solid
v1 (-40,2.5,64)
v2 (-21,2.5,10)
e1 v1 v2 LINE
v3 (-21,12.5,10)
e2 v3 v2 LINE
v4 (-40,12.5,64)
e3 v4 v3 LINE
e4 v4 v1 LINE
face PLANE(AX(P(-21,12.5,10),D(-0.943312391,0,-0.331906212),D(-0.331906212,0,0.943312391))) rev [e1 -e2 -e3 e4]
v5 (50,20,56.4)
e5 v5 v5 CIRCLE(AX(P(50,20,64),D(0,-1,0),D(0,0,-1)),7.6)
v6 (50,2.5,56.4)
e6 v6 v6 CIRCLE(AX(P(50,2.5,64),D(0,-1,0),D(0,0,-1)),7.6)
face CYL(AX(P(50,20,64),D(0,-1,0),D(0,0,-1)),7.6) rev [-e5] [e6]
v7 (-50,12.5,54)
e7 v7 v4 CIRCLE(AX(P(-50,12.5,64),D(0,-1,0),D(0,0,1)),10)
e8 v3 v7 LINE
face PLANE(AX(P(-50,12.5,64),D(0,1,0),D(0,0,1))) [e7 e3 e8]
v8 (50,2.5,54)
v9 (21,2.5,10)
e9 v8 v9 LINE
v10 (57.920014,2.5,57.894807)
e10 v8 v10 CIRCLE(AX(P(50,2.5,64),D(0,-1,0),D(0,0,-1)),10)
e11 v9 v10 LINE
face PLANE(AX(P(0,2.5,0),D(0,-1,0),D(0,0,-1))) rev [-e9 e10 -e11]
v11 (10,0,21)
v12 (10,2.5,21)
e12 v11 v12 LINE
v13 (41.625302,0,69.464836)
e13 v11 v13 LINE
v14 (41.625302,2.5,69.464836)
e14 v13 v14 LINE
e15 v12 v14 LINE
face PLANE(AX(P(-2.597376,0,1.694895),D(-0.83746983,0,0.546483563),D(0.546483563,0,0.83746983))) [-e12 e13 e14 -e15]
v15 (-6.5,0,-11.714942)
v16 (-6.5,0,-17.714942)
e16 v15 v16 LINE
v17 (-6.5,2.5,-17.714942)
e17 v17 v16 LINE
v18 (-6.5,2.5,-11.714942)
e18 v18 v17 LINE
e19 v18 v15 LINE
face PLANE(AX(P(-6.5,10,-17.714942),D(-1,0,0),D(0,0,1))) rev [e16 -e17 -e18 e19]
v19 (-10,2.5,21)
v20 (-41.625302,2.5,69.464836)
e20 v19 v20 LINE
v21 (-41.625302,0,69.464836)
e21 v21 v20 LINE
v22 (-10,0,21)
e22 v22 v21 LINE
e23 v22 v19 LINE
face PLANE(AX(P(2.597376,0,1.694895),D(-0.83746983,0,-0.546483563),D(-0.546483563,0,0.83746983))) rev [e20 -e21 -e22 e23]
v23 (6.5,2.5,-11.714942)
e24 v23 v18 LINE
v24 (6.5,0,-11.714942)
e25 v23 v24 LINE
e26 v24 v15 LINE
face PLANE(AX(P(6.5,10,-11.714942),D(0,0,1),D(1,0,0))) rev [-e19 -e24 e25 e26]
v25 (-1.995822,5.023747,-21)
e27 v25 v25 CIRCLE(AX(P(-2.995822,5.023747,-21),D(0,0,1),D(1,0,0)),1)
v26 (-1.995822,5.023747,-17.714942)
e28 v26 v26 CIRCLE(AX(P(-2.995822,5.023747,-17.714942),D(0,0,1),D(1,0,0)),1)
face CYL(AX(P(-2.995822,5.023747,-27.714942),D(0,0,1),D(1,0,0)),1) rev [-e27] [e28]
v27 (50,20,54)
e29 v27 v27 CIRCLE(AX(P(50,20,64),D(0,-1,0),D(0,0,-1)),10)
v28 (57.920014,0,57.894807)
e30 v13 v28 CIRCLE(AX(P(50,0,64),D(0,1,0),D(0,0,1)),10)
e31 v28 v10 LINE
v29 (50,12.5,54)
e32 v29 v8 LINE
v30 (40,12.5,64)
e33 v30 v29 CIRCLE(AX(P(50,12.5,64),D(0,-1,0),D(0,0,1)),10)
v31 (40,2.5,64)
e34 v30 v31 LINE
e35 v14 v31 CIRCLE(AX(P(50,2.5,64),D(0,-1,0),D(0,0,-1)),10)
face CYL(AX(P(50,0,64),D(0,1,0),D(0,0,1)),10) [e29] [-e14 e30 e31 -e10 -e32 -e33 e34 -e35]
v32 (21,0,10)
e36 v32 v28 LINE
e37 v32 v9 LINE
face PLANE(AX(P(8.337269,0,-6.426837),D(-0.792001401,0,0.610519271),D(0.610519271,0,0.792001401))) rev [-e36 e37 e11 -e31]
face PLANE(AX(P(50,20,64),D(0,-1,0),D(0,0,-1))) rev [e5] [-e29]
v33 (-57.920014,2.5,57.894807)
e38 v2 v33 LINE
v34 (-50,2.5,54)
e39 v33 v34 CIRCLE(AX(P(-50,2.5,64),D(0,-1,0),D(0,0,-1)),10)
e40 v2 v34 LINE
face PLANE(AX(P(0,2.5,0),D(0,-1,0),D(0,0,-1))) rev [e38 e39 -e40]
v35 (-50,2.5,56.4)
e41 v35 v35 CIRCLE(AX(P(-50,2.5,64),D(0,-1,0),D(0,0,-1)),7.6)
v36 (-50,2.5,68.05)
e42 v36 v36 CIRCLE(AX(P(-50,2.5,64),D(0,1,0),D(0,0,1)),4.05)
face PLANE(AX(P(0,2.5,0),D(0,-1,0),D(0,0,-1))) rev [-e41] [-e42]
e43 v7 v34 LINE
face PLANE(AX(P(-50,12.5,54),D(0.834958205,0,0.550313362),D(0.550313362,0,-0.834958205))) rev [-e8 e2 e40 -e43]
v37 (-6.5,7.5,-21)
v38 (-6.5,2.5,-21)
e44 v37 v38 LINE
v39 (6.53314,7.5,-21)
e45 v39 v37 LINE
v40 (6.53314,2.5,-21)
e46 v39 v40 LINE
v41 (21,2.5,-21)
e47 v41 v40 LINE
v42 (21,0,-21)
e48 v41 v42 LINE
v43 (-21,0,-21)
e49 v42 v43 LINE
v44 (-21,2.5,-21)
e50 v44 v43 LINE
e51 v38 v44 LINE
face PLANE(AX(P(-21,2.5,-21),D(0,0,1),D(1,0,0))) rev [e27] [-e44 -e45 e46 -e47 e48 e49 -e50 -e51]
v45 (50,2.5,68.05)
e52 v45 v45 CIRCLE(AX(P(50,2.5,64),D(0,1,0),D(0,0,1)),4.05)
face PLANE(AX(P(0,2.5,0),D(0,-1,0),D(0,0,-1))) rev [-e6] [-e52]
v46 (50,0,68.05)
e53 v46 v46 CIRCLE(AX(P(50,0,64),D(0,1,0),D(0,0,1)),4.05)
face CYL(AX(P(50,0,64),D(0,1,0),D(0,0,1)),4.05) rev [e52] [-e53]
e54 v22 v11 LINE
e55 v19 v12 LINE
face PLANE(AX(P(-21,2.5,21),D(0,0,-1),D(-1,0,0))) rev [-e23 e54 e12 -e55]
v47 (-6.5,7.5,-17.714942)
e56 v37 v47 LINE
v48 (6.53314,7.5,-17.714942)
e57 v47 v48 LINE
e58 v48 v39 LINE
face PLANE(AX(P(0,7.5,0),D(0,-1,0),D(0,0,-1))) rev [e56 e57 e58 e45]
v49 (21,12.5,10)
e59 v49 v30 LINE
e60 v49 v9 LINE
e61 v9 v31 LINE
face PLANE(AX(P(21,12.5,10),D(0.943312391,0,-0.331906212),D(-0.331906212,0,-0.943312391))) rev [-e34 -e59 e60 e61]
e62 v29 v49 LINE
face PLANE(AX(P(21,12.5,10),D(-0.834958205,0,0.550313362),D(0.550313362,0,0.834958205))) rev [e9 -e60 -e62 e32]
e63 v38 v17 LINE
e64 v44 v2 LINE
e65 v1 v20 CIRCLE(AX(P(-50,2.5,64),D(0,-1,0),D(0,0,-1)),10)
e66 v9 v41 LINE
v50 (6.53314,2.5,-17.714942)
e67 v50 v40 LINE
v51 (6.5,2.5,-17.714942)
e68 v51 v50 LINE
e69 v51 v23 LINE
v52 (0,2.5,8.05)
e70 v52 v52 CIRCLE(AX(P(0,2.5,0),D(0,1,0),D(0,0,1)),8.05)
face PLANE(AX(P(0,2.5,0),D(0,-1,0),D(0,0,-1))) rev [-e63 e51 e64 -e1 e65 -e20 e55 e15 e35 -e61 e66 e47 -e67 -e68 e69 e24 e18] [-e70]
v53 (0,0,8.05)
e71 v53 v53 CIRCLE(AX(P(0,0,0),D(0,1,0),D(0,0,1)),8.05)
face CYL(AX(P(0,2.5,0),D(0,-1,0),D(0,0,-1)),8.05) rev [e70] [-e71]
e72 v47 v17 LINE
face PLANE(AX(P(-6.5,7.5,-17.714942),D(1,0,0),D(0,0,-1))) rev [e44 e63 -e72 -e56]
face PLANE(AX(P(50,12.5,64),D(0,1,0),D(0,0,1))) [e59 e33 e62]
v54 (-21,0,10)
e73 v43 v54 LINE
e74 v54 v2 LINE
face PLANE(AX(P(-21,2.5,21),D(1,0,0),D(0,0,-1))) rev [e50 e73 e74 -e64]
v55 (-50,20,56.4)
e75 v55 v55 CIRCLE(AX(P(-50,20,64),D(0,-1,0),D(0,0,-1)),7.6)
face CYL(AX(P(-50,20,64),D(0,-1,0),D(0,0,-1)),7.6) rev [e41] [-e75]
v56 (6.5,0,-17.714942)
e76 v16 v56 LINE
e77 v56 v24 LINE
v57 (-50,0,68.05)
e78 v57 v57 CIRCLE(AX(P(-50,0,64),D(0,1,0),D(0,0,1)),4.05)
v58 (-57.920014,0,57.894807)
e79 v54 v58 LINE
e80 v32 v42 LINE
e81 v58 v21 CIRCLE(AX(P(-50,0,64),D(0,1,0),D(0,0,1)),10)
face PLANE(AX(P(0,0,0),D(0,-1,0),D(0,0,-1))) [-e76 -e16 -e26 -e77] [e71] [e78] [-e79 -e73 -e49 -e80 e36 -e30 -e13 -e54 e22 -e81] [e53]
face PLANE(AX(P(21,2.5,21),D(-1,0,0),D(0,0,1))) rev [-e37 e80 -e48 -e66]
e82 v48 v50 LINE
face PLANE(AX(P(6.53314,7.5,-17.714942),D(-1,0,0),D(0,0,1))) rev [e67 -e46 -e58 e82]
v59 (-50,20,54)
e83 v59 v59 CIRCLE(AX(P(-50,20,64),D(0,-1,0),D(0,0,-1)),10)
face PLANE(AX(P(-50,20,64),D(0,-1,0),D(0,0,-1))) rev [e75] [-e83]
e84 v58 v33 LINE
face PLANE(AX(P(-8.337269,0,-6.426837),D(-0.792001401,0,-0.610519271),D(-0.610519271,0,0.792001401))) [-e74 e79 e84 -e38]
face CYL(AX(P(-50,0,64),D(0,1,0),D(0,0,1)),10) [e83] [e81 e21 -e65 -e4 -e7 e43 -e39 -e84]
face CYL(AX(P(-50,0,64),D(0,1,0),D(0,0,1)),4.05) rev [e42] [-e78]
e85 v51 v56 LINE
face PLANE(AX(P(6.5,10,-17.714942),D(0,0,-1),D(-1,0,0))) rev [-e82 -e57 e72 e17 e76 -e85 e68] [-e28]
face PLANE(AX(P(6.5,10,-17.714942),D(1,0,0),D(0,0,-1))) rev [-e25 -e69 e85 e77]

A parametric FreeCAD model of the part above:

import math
import FreeCAD as App
import Part
import Sketcher

V = App.Vector

doc = App.newDocument("Part")
body = doc.addObject("PartDesign::Body", "Body")

# Sketch on XZ plane
sketch1 = body.newObject("Sketcher::SketchObject", "Sketch")
sketch1.AttachmentSupport = (doc.getObject("XZ_Plane"), [""])
sketch1.MapMode = "FlatFace"
sketch1.addGeometry([
    Part.LineSegment(V(-21, -21, 0), V(-21, 21, 0)),  # 0
    Part.LineSegment(V(-21, 21, 0), V(21, 21, 0)),  # 1
    Part.LineSegment(V(21, 21, 0), V(21, -21, 0)),  # 2
    Part.LineSegment(V(21, -21, 0), V(-21, -21, 0)),  # 3
    Part.Circle(V(0, 0, 0), V(0, 0, 1), 8),  # 4
], False)
sketch1.addConstraint([
    Sketcher.Constraint("Coincident", 0, 2, 1, 1),
    Sketcher.Constraint("Coincident", 1, 2, 2, 1),
    Sketcher.Constraint("Coincident", 2, 2, 3, 1),
    Sketcher.Constraint("Coincident", 3, 2, 0, 1),
    Sketcher.Constraint("Vertical", 0),
    Sketcher.Constraint("Horizontal", 1),
    Sketcher.Constraint("Vertical", 2),
    Sketcher.Constraint("Horizontal", 3),
    Sketcher.Constraint("Coincident", 4, 3, -1, 1),
    Sketcher.Constraint("Symmetric", 0, 2, 2, 2, -1, 1),
    Sketcher.Constraint("Equal", 3, 0),
    Sketcher.Constraint("Diameter", 4, 16.1),
    Sketcher.Constraint("DistanceX", 1, 1, 1, 2, 42.0),
])
pad1 = body.newObject("PartDesign::Pad", "Pad")
pad1.Profile = sketch1
pad1.Length = 2.5
pad1.Reversed = True

# Sketch on XZ plane
sketch2 = body.newObject("Sketcher::SketchObject", "Sketch001")
sketch2.AttachmentSupport = (doc.getObject("XZ_Plane"), [""])
sketch2.MapMode = "FlatFace"
sketch2.AttachmentOffset = App.Placement(V(0, 0, -2.5), App.Rotation())
sketch2.addGeometry([
    Part.LineSegment(V(-21, 21, 0), V(-21, 10, 0)),  # 0
    Part.LineSegment(V(-21, 10, 0), V(-57.9, 57.9, 0)),  # 1
    Part.ArcOfCircle(Part.Circle(V(-50, 64, 0), V(0, 0, 1), 10), math.radians(33), math.radians(218)),  # 2
    Part.LineSegment(V(-41.6, 69.5, 0), V(-10, 21, 0)),  # 3
    Part.LineSegment(V(-10, 21, 0), V(-21, 21, 0)),  # 4
    Part.Circle(V(-50, 64, 0), V(0, 0, 1), 4),  # 5
    Part.LineSegment(V(57.9, 57.9, 0), V(21, 10, 0)),  # 6
    Part.LineSegment(V(21, 10, 0), V(21, 21, 0)),  # 7
    Part.LineSegment(V(21, 21, 0), V(10, 21, 0)),  # 8
    Part.LineSegment(V(10, 21, 0), V(41.6, 69.5, 0)),  # 9
    Part.ArcOfCircle(Part.Circle(V(50, 64, 0), V(0, 0, 1), 10), math.radians(-38), math.radians(147)),  # 10
    Part.Circle(V(50, 64, 0), V(0, 0, 1), 4),  # 11
], False)
sketch2.addConstraint([
    Sketcher.Constraint("Coincident", 0, 2, 1, 1),
    Sketcher.Constraint("Tangent", 1, 2, 2, 2),
    Sketcher.Constraint("Tangent", 2, 1, 3, 1),
    Sketcher.Constraint("Coincident", 3, 2, 4, 1),
    Sketcher.Constraint("Coincident", 4, 2, 0, 1),
    Sketcher.Constraint("Coincident", 6, 2, 7, 1),
    Sketcher.Constraint("Coincident", 7, 2, 8, 1),
    Sketcher.Constraint("Coincident", 8, 2, 9, 1),
    Sketcher.Constraint("Tangent", 9, 2, 10, 2),
    Sketcher.Constraint("Tangent", 10, 1, 6, 1),
    Sketcher.Constraint("Vertical", 0),
    Sketcher.Constraint("Horizontal", 4),
    Sketcher.Constraint("Vertical", 7),
    Sketcher.Constraint("Horizontal", 8),
    Sketcher.Constraint("Coincident", 5, 3, 2, 3),
    Sketcher.Constraint("Coincident", 11, 3, 10, 3),
    Sketcher.Constraint("Equal", 2, 10),
    Sketcher.Constraint("Equal", 5, 11),
    Sketcher.Constraint("Symmetric", 2, 3, 10, 3, -2),
    Sketcher.Constraint("Symmetric", 0, 2, 6, 2, -2),
    Sketcher.Constraint("Symmetric", 3, 2, 8, 2, -2),
    Sketcher.Constraint("Equal", 8, 0),
    Sketcher.Constraint("Radius", 2, 10.0),
    Sketcher.Constraint("Diameter", 5, 8.1),
    Sketcher.Constraint("DistanceX", 4, 2, 4, 1, 11.0),
    Sketcher.Constraint("DistanceX", 2, 3, -1, 1, 50.0),
    Sketcher.Constraint("DistanceY", -1, 1, 2, 3, 64.0),
    Sketcher.Constraint("DistanceX", 0, 2, -1, 1, 21.0),
    Sketcher.Constraint("DistanceY", -1, 1, 0, 2, 10.0),
])
pad2 = body.newObject("PartDesign::Pad", "Pad001")
pad2.Profile = sketch2
pad2.Length = 2.5

# Sketch on XZ plane
sketch3 = body.newObject("Sketcher::SketchObject", "Sketch002")
sketch3.AttachmentSupport = (doc.getObject("XZ_Plane"), [""])
sketch3.MapMode = "FlatFace"
sketch3.AttachmentOffset = App.Placement(V(0, 0, -20), App.Rotation())
sketch3.addGeometry([
    Part.Circle(V(-50, 64, 0), V(0, 0, 1), 10),
    Part.Circle(V(-50, 64, 0), V(0, 0, 1), 8),
    Part.Circle(V(50, 64, 0), V(0, 0, 1), 10),
    Part.Circle(V(50, 64, 0), V(0, 0, 1), 8),
], False)
sketch3.addConstraint([
    Sketcher.Constraint("Coincident", 1, 3, 0, 3),
    Sketcher.Constraint("Coincident", 3, 3, 2, 3),
    Sketcher.Constraint("Equal", 0, 2),
    Sketcher.Constraint("Equal", 1, 3),
    Sketcher.Constraint("Symmetric", 0, 3, 2, 3, -2),
    Sketcher.Constraint("Diameter", 0, 20.0),
    Sketcher.Constraint("Diameter", 1, 15.2),
    Sketcher.Constraint("DistanceX", 0, 3, -1, 1, 50.0),
    Sketcher.Constraint("DistanceY", -1, 1, 0, 3, 64.0),
])
pad3 = body.newObject("PartDesign::Pad", "Pad002")
pad3.Profile = sketch3
pad3.Length = 20

# Sketch on XZ plane
sketch4 = body.newObject("Sketcher::SketchObject", "Sketch003")
sketch4.AttachmentSupport = (doc.getObject("XZ_Plane"), [""])
sketch4.MapMode = "FlatFace"
sketch4.AttachmentOffset = App.Placement(V(0, 0, -12.5), App.Rotation())
sketch4.addGeometry([
    Part.LineSegment(V(-21, 10, 0), V(-50, 54, 0)),  # 0
    Part.ArcOfCircle(Part.Circle(V(-50, 64, 0), V(0, 0, 1), 10), math.radians(-90), math.radians(0)),  # 1
    Part.LineSegment(V(-40, 64, 0), V(-21, 10, 0)),  # 2
    Part.LineSegment(V(21, 10, 0), V(40, 64, 0)),  # 3
    Part.ArcOfCircle(Part.Circle(V(50, 64, 0), V(0, 0, 1), 10), math.radians(180), math.radians(270)),  # 4
    Part.LineSegment(V(50, 54, 0), V(21, 10, 0)),  # 5
], False)
sketch4.addConstraint([
    Sketcher.Constraint("Coincident", 0, 2, 1, 1),
    Sketcher.Constraint("Coincident", 1, 2, 2, 1),
    Sketcher.Constraint("Coincident", 2, 2, 0, 1),
    Sketcher.Constraint("Coincident", 3, 2, 4, 1),
    Sketcher.Constraint("Coincident", 4, 2, 5, 1),
    Sketcher.Constraint("Coincident", 5, 2, 3, 1),
    Sketcher.Constraint("Equal", 1, 4),
    Sketcher.Constraint("Symmetric", 1, 3, 4, 3, -2),
    Sketcher.Constraint("Symmetric", 2, 2, 5, 2, -2),
    Sketcher.Constraint("Horizontal", 4, 3, 1, 2),
    Sketcher.Constraint("Horizontal", 1, 2, 3, 2),
    Sketcher.Constraint("Vertical", 1, 3, 0, 2),
    Sketcher.Constraint("Equal", 0, 5),
    Sketcher.Constraint("Radius", 1, 10.0),
    Sketcher.Constraint("DistanceX", 1, 3, -1, 1, 50.0),
    Sketcher.Constraint("DistanceY", -1, 1, 1, 3, 64.0),
    Sketcher.Constraint("DistanceX", 2, 2, -1, 1, 21.0),
    Sketcher.Constraint("DistanceY", -1, 1, 2, 2, 10.0),
])
pad4 = body.newObject("PartDesign::Pad", "Pad003")
pad4.Profile = sketch4
pad4.Length = 10

# Sketch on XZ plane
sketch5 = body.newObject("Sketcher::SketchObject", "Sketch004")
sketch5.AttachmentSupport = (doc.getObject("XZ_Plane"), [""])
sketch5.MapMode = "FlatFace"
sketch5.addGeometry([
    Part.LineSegment(V(6, -18, 0), V(6, -12, 0)),
    Part.LineSegment(V(6, -12, 0), V(-6, -12, 0)),
    Part.LineSegment(V(-6, -12, 0), V(-6, -18, 0)),
    Part.LineSegment(V(-6, -18, 0), V(6, -18, 0)),
], False)
sketch5.addConstraint([
    Sketcher.Constraint("Coincident", 0, 2, 1, 1),
    Sketcher.Constraint("Coincident", 1, 2, 2, 1),
    Sketcher.Constraint("Coincident", 2, 2, 3, 1),
    Sketcher.Constraint("Coincident", 3, 2, 0, 1),
    Sketcher.Constraint("Vertical", 0),
    Sketcher.Constraint("Horizontal", 1),
    Sketcher.Constraint("Vertical", 2),
    Sketcher.Constraint("Horizontal", 3),
    Sketcher.Constraint("DistanceX", 1, 2, 1, 1, 13.0),
    Sketcher.Constraint("DistanceY", 0, 1, 0, 2, 6.0),
    Sketcher.Constraint("DistanceX", -1, 1, 0, 2, 6.5),
    Sketcher.Constraint("DistanceY", 0, 2, -1, 1, 11.714942),
])
pocket1 = body.newObject("PartDesign::Pocket", "Pocket")
pocket1.Profile = sketch5
pocket1.Length = 10

# Sketch on XZ plane
sketch6 = body.newObject("Sketcher::SketchObject", "Sketch005")
sketch6.AttachmentSupport = (doc.getObject("XZ_Plane"), [""])
sketch6.MapMode = "FlatFace"
sketch6.AttachmentOffset = App.Placement(V(0, 0, -2.5), App.Rotation())
sketch6.addGeometry([
    Part.LineSegment(V(-6.5, -21, 0), V(-6.5, -17.7, 0)),
    Part.LineSegment(V(-6.5, -17.7, 0), V(6.5, -17.7, 0)),
    Part.LineSegment(V(6.5, -17.7, 0), V(6.5, -21, 0)),
    Part.LineSegment(V(6.5, -21, 0), V(-6.5, -21, 0)),
], False)
sketch6.addConstraint([
    Sketcher.Constraint("Coincident", 0, 2, 1, 1),
    Sketcher.Constraint("Coincident", 1, 2, 2, 1),
    Sketcher.Constraint("Coincident", 2, 2, 3, 1),
    Sketcher.Constraint("Coincident", 3, 2, 0, 1),
    Sketcher.Constraint("Vertical", 0),
    Sketcher.Constraint("Horizontal", 1),
    Sketcher.Constraint("Vertical", 2),
    Sketcher.Constraint("Horizontal", 3),
    Sketcher.Constraint("DistanceY", 2, 2, -1, 1, 21.0),
    Sketcher.Constraint("DistanceX", 0, 2, -1, 1, 6.5),
    Sketcher.Constraint("DistanceX", 1, 1, 1, 2, 13.03314),
    Sketcher.Constraint("DistanceY", 0, 1, 0, 2, 3.285058),
])
pad5 = body.newObject("PartDesign::Pad", "Pad004")
pad5.Profile = sketch6
pad5.Length = 5
pad5.Reversed = True

# Sketch on XY plane
sketch7 = body.newObject("Sketcher::SketchObject", "Sketch006")
sketch7.AttachmentSupport = (doc.getObject("XY_Plane"), [""])
sketch7.MapMode = "FlatFace"
sketch7.AttachmentOffset = App.Placement(V(0, 0, -17.714942), App.Rotation())
sketch7.addGeometry(Part.Circle(V(-3, 5, 0), V(0, 0, 1), 1), False)
sketch7.addConstraint([
    Sketcher.Constraint("Diameter", 0, 2.0),
    Sketcher.Constraint("DistanceX", 0, 3, -1, 1, 2.995822),
    Sketcher.Constraint("DistanceY", -1, 1, 0, 3, 5.023747),
])
pocket2 = body.newObject("PartDesign::Pocket", "Pocket001")
pocket2.Profile = sketch7
pocket2.Length = 10

doc.recompute()
